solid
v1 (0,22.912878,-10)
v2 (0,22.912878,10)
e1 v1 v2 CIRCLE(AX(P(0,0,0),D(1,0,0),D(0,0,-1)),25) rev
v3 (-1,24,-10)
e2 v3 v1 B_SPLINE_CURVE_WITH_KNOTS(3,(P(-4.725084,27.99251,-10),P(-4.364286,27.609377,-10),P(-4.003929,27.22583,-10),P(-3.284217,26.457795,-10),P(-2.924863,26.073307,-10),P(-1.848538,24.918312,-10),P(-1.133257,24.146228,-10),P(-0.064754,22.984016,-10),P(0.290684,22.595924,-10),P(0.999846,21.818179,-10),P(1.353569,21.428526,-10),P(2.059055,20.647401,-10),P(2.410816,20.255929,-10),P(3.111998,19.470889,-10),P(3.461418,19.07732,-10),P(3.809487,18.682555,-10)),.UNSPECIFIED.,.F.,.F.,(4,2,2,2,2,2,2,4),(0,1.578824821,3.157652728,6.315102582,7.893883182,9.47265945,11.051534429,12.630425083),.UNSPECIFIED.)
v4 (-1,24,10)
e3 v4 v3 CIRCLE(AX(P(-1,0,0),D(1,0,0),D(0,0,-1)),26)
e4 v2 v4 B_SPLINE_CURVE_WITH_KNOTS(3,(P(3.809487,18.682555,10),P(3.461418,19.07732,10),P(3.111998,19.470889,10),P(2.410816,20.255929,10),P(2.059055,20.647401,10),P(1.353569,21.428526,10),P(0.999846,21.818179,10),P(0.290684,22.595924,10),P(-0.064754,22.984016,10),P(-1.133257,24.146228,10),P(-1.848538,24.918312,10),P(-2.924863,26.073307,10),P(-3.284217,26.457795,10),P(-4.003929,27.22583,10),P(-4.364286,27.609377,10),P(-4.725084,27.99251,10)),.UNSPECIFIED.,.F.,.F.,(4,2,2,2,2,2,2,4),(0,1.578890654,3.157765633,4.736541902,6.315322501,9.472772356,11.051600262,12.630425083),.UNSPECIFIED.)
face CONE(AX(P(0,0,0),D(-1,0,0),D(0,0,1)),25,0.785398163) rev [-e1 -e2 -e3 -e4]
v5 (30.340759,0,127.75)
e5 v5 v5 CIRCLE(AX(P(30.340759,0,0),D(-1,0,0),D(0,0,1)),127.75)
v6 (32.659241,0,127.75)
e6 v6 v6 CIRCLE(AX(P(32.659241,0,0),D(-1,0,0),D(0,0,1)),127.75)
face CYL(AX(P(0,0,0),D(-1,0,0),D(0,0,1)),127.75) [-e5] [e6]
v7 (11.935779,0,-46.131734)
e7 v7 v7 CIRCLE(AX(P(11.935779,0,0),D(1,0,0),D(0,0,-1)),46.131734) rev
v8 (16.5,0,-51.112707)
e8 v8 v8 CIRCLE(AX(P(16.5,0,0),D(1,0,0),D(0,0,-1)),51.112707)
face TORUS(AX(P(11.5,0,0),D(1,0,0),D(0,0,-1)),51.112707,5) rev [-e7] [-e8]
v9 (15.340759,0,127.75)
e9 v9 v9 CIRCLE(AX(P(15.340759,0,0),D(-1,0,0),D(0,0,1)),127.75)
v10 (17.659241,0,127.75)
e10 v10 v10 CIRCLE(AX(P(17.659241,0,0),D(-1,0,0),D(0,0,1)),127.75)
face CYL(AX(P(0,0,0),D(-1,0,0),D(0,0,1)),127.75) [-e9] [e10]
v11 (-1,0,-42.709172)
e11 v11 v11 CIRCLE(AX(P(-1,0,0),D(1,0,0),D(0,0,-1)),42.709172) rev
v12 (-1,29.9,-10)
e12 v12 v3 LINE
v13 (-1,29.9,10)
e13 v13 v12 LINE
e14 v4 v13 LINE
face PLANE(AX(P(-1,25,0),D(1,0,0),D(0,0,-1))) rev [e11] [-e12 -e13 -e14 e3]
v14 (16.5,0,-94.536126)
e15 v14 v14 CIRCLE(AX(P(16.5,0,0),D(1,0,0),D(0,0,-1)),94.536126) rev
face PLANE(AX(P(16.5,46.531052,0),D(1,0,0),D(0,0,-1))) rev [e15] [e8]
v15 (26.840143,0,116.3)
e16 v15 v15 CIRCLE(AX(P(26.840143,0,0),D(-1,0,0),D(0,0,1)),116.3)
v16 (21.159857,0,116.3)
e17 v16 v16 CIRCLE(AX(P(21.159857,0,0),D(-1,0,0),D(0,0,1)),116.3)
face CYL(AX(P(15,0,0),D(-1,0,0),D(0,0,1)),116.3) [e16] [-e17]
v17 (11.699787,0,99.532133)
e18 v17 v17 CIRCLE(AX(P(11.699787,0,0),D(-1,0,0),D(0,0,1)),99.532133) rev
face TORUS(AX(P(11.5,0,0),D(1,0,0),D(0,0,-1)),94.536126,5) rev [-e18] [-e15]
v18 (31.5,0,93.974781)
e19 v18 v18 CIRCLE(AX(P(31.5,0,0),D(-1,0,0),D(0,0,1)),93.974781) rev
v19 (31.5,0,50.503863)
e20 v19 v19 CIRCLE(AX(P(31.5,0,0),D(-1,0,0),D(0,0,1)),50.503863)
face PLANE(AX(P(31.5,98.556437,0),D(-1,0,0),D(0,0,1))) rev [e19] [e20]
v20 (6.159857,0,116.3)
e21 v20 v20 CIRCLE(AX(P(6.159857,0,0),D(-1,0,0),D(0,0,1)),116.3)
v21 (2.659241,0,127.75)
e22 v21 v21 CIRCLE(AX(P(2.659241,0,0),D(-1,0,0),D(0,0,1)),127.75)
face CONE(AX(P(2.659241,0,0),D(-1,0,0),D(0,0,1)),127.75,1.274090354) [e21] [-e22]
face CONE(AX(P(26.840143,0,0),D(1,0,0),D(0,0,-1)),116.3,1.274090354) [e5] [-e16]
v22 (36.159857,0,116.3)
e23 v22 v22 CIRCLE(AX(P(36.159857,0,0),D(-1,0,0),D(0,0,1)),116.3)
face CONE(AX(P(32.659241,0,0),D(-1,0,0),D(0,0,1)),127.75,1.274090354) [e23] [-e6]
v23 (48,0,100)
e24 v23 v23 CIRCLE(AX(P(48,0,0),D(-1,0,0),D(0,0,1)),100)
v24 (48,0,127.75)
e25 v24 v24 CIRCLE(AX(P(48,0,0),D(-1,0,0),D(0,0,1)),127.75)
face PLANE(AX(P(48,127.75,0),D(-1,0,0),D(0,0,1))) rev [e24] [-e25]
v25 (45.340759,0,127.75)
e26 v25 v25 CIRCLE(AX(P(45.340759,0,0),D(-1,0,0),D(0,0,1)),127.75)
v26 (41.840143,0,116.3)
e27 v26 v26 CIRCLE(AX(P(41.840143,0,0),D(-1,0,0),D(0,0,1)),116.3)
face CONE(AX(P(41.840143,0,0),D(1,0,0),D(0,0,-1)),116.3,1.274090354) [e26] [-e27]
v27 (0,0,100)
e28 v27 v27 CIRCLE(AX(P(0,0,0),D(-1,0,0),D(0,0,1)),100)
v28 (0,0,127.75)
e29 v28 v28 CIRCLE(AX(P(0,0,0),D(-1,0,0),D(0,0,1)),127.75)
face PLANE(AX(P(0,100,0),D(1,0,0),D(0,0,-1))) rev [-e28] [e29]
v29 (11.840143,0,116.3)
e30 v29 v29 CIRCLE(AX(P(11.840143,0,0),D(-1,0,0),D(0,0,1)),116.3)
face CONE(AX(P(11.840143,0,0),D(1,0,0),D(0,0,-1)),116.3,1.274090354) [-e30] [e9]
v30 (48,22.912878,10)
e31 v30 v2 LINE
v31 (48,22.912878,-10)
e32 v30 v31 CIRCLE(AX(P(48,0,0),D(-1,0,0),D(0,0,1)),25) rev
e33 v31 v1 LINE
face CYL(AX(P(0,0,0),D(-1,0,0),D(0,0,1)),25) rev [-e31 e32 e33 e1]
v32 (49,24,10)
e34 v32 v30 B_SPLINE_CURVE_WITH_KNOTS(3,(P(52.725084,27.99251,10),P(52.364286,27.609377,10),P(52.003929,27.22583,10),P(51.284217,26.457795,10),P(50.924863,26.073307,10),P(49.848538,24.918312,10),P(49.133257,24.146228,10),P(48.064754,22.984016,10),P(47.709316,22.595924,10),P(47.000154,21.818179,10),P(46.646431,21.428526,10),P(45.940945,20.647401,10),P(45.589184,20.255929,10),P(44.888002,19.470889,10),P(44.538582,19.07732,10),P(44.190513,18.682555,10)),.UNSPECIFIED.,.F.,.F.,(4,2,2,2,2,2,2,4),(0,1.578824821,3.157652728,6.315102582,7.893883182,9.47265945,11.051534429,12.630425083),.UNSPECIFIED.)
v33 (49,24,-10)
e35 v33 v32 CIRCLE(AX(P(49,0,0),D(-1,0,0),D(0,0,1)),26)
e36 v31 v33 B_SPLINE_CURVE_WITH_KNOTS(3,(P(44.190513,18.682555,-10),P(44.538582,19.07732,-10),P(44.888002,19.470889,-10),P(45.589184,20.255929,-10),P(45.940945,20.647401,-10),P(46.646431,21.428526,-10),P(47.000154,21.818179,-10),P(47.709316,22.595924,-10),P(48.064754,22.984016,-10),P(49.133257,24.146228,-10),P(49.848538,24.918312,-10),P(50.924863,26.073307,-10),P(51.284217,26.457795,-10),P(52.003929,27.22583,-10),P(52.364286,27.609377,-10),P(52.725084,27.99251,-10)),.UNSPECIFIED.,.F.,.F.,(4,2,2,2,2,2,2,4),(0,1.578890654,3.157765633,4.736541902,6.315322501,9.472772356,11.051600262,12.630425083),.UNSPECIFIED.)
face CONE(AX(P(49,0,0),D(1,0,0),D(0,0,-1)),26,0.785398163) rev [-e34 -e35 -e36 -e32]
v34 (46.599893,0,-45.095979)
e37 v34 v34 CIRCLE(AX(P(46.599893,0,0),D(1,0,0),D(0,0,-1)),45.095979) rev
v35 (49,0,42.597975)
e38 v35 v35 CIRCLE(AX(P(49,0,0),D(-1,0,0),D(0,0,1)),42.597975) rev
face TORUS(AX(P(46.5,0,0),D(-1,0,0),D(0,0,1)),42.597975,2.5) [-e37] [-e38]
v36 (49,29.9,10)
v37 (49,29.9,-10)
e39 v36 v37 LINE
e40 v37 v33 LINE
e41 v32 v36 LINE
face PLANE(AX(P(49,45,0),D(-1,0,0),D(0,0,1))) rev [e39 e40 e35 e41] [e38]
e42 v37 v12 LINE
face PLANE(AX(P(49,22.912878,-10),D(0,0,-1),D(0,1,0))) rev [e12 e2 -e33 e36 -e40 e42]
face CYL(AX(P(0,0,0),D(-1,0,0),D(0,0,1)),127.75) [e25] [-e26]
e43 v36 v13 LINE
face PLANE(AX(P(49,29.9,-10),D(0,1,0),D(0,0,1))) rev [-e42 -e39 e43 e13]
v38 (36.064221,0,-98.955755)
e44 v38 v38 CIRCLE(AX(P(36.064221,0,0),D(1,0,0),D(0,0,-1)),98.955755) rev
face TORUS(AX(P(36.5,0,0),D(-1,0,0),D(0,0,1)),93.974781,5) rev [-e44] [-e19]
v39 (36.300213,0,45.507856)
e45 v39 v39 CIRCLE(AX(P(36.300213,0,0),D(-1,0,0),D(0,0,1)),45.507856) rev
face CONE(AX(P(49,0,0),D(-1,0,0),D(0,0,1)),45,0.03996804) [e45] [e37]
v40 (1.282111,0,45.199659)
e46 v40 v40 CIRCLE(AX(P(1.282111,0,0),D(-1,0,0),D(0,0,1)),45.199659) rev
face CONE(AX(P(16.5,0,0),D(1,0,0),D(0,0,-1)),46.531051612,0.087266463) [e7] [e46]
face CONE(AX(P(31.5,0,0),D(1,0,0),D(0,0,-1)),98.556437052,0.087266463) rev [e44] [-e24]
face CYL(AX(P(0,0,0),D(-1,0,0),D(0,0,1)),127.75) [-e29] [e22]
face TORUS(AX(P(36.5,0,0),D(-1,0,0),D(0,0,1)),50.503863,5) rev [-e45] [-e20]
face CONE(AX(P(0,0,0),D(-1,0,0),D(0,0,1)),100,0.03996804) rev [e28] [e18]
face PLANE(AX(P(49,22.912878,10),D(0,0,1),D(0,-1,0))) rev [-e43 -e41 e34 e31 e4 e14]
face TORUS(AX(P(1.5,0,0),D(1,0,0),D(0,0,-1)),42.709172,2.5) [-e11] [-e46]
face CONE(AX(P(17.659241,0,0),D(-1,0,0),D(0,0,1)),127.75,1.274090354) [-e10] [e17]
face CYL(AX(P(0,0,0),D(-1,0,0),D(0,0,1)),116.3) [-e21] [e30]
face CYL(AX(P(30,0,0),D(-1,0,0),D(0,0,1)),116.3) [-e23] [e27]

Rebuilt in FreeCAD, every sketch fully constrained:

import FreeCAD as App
import Part
import Sketcher
Q = App.Units.Quantity


def edges_at(feature, points):
    """Names of the edges that pass closest to the given points."""
    edges = feature.Shape.Edges
    near = lambda p: min(range(len(edges)), key=lambda i: edges[i].distToShape(Part.Vertex(*p))[0])
    return sorted({f"Edge{near(p) + 1}" for p in points})


def add_polygon(sketch, points):
    """Adds a closed chain of lines whose ends are joined by coincident constraints."""
    first, n = sketch.GeometryCount, len(points)
    for a, b in zip(points, points[1:] + points[:1]):
        sketch.addGeometry(Part.LineSegment(App.Vector(*a, 0), App.Vector(*b, 0)), False)
    for i in range(n):
        sketch.addConstraint(Sketcher.Constraint("Coincident", first + i, 2, first + (i + 1) % n, 1))

doc = App.newDocument("Part")
body = doc.addObject("PartDesign::Body", "Body")

# Sketch on XY plane
sketch1 = doc.addObject("Sketcher::SketchObject", "Sketch")
body.addObject(sketch1)
sketch1.AttachmentSupport = (doc.XY_Plane, [""])
sketch1.MapMode = "FlatFace"
add_polygon(sketch1, [(-1, 45), (-1, 25), (49, 25), (49, 45), (31.5, 45.699813), (31.5, 98.556437), (48, 100), (48, 127.75), (0, 127.75), (0, 100), (16.5, 99.340176), (16.5, 46.531052)])  # lines 0-11
sketch1.addConstraint(Sketcher.Constraint("Vertical", 0))
sketch1.addConstraint(Sketcher.Constraint("Horizontal", 1))
sketch1.addConstraint(Sketcher.Constraint("Vertical", 2))
sketch1.addConstraint(Sketcher.Constraint("Vertical", 4))
sketch1.addConstraint(Sketcher.Constraint("Vertical", 6))
sketch1.addConstraint(Sketcher.Constraint("Horizontal", 7))
sketch1.addConstraint(Sketcher.Constraint("Vertical", 8))
sketch1.addConstraint(Sketcher.Constraint("Vertical", 10))
sketch1.addConstraint(Sketcher.Constraint("PointOnObject", 7, 2, -2))
sketch1.addConstraint(Sketcher.Constraint("Parallel", 3, 9))
sketch1.addConstraint(Sketcher.Constraint("Parallel", 5, 11))
sketch1.addConstraint(Sketcher.Constraint("Horizontal", 5, 2, 8, 2))
sketch1.addConstraint(Sketcher.Constraint("Horizontal", 2, 2, 11, 2))
sketch1.addConstraint(Sketcher.Constraint("DistanceX", 1, 1, 1, 2, Q("50 mm")))
sketch1.addConstraint(Sketcher.Constraint("DistanceX", 7, 2, 7, 1, Q("48 mm")))
sketch1.addConstraint(Sketcher.Constraint("DistanceY", 0, 2, 0, 1, Q("20 mm")))
sketch1.addConstraint(Sketcher.Constraint("Angle", 5, Q("5 deg")))
sketch1.addConstraint(Sketcher.Constraint("DistanceX", 0, 2, -1, 1, Q("1 mm")))
sketch1.addConstraint(Sketcher.Constraint("DistanceY", -1, 1, 0, 2, Q("25 mm")))
sketch1.addConstraint(Sketcher.Constraint("DistanceY", -1, 1, 5, 2, Q("100 mm")))
sketch1.addConstraint(Sketcher.Constraint("DistanceX", 9, 2, 4, 2, Q("15 mm")))
sketch1.addConstraint(Sketcher.Constraint("DistanceY", 6, 1, 6, 2, Q("27.75 mm")))
sketch1.addConstraint(Sketcher.Constraint("DistanceX", -1, 1, 3, 2, Q("31.5 mm")))
sketch1.addConstraint(Sketcher.Constraint("Angle", 3, Q("177.71 deg")))
revolution = doc.addObject("PartDesign::Revolution", "Revolution")
body.addObject(revolution)
revolution.Profile = sketch1
revolution.ReferenceAxis = (sketch1, ["H_Axis"])
revolution.Angle = 360

# Sketch on XY plane
sketch2 = doc.addObject("Sketcher::SketchObject", "Sketch001")
body.addObject(sketch2)
sketch2.AttachmentSupport = (doc.XY_Plane, [""])
sketch2.MapMode = "FlatFace"
add_polygon(sketch2, [(11.840143, 116.3), (15.340759, 127.75), (2.659241, 127.75), (6.159857, 116.3)])  # lines 0-3
sketch2.addConstraint(Sketcher.Constraint("Horizontal", 1))
sketch2.addConstraint(Sketcher.Constraint("Horizontal", 3))
sketch2.addConstraint(Sketcher.Constraint("Equal", 0, 2))
sketch2.addConstraint(Sketcher.Constraint("Angle", 0, Q("73 deg")))
sketch2.addConstraint(Sketcher.Constraint("DistanceY", -1, 1, 2, 2, Q("116.3 mm")))
sketch2.addConstraint(Sketcher.Constraint("DistanceY", -1, 1, 0, 2, Q("127.75 mm")))
sketch2.addConstraint(Sketcher.Constraint("DistanceX", 1, 2, 1, 1, Q("12.681519 mm")))
sketch2.addConstraint(Sketcher.Constraint("DistanceX", -1, 1, 0, 2, Q("15.340759 mm")))
groove = doc.addObject("PartDesign::Groove", "Groove")
body.addObject(groove)
groove.Profile = sketch2
groove.ReferenceAxis = (sketch2, ["H_Axis"])
groove.Angle = 360
doc.recompute()

linearpattern = doc.addObject("PartDesign::LinearPattern", "LinearPattern")
body.addObject(linearpattern)
linearpattern.Originals = [groove]
linearpattern.Direction = (doc.X_Axis, [""])
linearpattern.Mode = "offset"
linearpattern.Offset = 15
linearpattern.Occurrences = 3
body.Tip = linearpattern
doc.recompute()

chamfer = doc.addObject("PartDesign::Chamfer", "Chamfer")
body.addObject(chamfer)
chamfer.Base = (linearpattern, edges_at(linearpattern, [(-1, 0, -25), (49, 0, -25)]))
chamfer.Size = 1

# Sketch on YZ plane
sketch3 = doc.addObject("Sketcher::SketchObject", "Sketch002")
body.addObject(sketch3)
sketch3.AttachmentSupport = (doc.YZ_Plane, [""])
sketch3.MapMode = "FlatFace"
sketch3.AttachmentOffset = App.Placement(App.Vector(0, 0, -1), App.Rotation())
add_polygon(sketch3, [(29.9, -10), (22.912878, -10), (22.912878, 10), (29.9, 10)])  # lines 0-3
sketch3.addConstraint(Sketcher.Constraint("Horizontal", 0))
sketch3.addConstraint(Sketcher.Constraint("Vertical", 1))
sketch3.addConstraint(Sketcher.Constraint("Horizontal", 2))
sketch3.addConstraint(Sketcher.Constraint("Vertical", 3))
sketch3.addConstraint(Sketcher.Constraint("DistanceY", 1, 1, 1, 2, Q("20 mm")))
sketch3.addConstraint(Sketcher.Constraint("DistanceY", 0, 2, -1, 1, Q("10 mm")))
sketch3.addConstraint(Sketcher.Constraint("DistanceX", -1, 1, 2, 2, Q("29.9 mm")))
sketch3.addConstraint(Sketcher.Constraint("DistanceX", 0, 2, 0, 1, Q("6.987122 mm")))
pocket1 = doc.addObject("PartDesign::Pocket", "Pocket")
body.addObject(pocket1)
pocket1.Profile = sketch3
pocket1.Type = "ThroughAll"
pocket1.Reversed = True
doc.recompute()

fillet = doc.addObject("PartDesign::Fillet", "Fillet")
body.addObject(fillet)
fillet.Base = (pocket1, edges_at(pocket1, [
    (16.5, 0, -99.34),
    (16.5, 0, -46.531),
    (31.5, 0, -45.7),
    (31.5, 0, -98.556),
]))
fillet.Radius = 5
doc.recompute()

fillet2 = doc.addObject("PartDesign::Fillet", "Fillet001")
body.addObject(fillet2)
fillet2.Base = (fillet, edges_at(fillet, [(-1, 0, -45), (49, 0, -45)]))
fillet2.Radius = 2.5

doc.recompute()
